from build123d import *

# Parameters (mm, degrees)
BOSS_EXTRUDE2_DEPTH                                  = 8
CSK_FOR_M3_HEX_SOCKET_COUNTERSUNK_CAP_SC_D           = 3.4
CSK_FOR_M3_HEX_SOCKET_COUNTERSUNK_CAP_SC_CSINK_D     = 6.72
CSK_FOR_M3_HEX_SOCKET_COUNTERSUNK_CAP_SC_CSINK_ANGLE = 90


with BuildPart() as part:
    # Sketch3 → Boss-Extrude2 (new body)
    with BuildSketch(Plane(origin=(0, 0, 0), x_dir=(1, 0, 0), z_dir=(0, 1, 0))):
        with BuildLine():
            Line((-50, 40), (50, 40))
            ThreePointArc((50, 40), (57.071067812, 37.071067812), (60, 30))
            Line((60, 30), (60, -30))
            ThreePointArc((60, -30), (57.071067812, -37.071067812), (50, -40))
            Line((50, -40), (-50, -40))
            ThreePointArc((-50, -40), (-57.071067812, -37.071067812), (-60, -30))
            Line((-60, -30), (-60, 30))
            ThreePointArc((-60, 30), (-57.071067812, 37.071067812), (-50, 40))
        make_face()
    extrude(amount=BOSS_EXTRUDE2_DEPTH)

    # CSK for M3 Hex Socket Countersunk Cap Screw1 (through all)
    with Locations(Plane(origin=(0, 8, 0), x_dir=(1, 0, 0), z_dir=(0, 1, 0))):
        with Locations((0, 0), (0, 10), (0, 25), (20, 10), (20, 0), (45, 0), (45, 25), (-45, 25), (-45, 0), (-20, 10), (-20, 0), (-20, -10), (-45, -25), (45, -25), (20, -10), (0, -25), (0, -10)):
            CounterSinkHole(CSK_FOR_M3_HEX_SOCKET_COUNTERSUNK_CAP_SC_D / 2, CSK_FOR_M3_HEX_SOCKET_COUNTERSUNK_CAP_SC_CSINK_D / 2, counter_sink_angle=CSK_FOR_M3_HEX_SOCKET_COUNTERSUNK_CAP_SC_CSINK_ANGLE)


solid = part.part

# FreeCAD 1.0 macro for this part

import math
import FreeCAD as App
import Part
import Sketcher

doc = App.newDocument("Part")
body = doc.addObject("PartDesign::Body", "Body")

# Sketch on XZ plane
sketch1 = doc.addObject("Sketcher::SketchObject", "Sketch")
body.addObject(sketch1)
sketch1.AttachmentSupport = (doc.XZ_Plane, [""])
sketch1.MapMode = "FlatFace"
sketch1.addGeometry([
    Part.LineSegment(App.Vector(50, -40, 0), App.Vector(-50, -40, 0)),  # 0
    Part.ArcOfCircle(Part.Circle(App.Vector(-50, -30, 0), App.Vector(0, 0, 1), 10), math.radians(180), math.radians(270)),  # 1
    Part.LineSegment(App.Vector(-60, -30, 0), App.Vector(-60, 30, 0)),  # 2
    Part.ArcOfCircle(Part.Circle(App.Vector(-50, 30, 0), App.Vector(0, 0, 1), 10), math.radians(90), math.radians(180)),  # 3
    Part.LineSegment(App.Vector(-50, 40, 0), App.Vector(50, 40, 0)),  # 4
    Part.ArcOfCircle(Part.Circle(App.Vector(50, 30, 0), App.Vector(0, 0, 1), 10), math.radians(0), math.radians(90)),  # 5
    Part.LineSegment(App.Vector(60, 30, 0), App.Vector(60, -30, 0)),  # 6
    Part.ArcOfCircle(Part.Circle(App.Vector(50, -30, 0), App.Vector(0, 0, 1), 10), math.radians(-90), math.radians(0)),  # 7
], False)
sketch1.addConstraint([
    Sketcher.Constraint("Tangent", 0, 2, 1, 2),
    Sketcher.Constraint("Tangent", 1, 1, 2, 1),
    Sketcher.Constraint("Tangent", 2, 2, 3, 2),
    Sketcher.Constraint("Tangent", 3, 1, 4, 1),
    Sketcher.Constraint("Tangent", 4, 2, 5, 2),
    Sketcher.Constraint("Tangent", 5, 1, 6, 1),
    Sketcher.Constraint("Tangent", 6, 2, 7, 2),
    Sketcher.Constraint("Tangent", 7, 1, 0, 1),
    Sketcher.Constraint("Horizontal", 0),
    Sketcher.Constraint("Vertical", 2),
    Sketcher.Constraint("Horizontal", 4),
    Sketcher.Constraint("Vertical", 6),
    Sketcher.Constraint("Equal", 1, 3),
    Sketcher.Constraint("Equal", 3, 5),
    Sketcher.Constraint("Equal", 5, 7),
    Sketcher.Constraint("Symmetric", 1, 3, 5, 3, -1, 1),
    Sketcher.Constraint("Radius", 1, 10.0),
    Sketcher.Constraint("DistanceX", 0, 2, 0, 1, 100.0),
    Sketcher.Constraint("DistanceY", 2, 1, 2, 2, 60.0),
])
pad1 = doc.addObject("PartDesign::Pad", "Pad")
body.addObject(pad1)
pad1.Profile = sketch1
pad1.Length = 8
pad1.Reversed = True

# Sketch on XZ plane
sketch2 = doc.addObject("Sketcher::SketchObject", "Sketch001")
body.addObject(sketch2)
sketch2.AttachmentSupport = (doc.XZ_Plane, [""])
sketch2.MapMode = "FlatFace"
sketch2.AttachmentOffset = App.Placement(App.Vector(0, 0, -8), App.Rotation())
sketch2.addGeometry([
    Part.Circle(App.Vector(0, 0, 0), App.Vector(0, 0, 1), 1.7),  # 0
    Part.Circle(App.Vector(0, -10, 0), App.Vector(0, 0, 1), 1.7),  # 1
    Part.Circle(App.Vector(0, -25, 0), App.Vector(0, 0, 1), 1.7),  # 2
    Part.Circle(App.Vector(20, -10, 0), App.Vector(0, 0, 1), 1.7),  # 3
    Part.Circle(App.Vector(20, 0, 0), App.Vector(0, 0, 1), 1.7),  # 4
    Part.Circle(App.Vector(45, 0, 0), App.Vector(0, 0, 1), 1.7),  # 5
    Part.Circle(App.Vector(45, -25, 0), App.Vector(0, 0, 1), 1.7),  # 6
    Part.Circle(App.Vector(-45, -25, 0), App.Vector(0, 0, 1), 1.7),  # 7
    Part.Circle(App.Vector(-45, 0, 0), App.Vector(0, 0, 1), 1.7),  # 8
    Part.Circle(App.Vector(-20, -10, 0), App.Vector(0, 0, 1), 1.7),  # 9
    Part.Circle(App.Vector(-20, 0, 0), App.Vector(0, 0, 1), 1.7),  # 10
    Part.Circle(App.Vector(-20, 10, 0), App.Vector(0, 0, 1), 1.7),  # 11
    Part.Circle(App.Vector(-45, 25, 0), App.Vector(0, 0, 1), 1.7),  # 12
    Part.Circle(App.Vector(45, 25, 0), App.Vector(0, 0, 1), 1.7),  # 13
    Part.Circle(App.Vector(20, 10, 0), App.Vector(0, 0, 1), 1.7),  # 14
    Part.Circle(App.Vector(0, 25, 0), App.Vector(0, 0, 1), 1.7),  # 15
    Part.Circle(App.Vector(0, 10, 0), App.Vector(0, 0, 1), 1.7),  # 16
], False)
sketch2.addConstraint([
    Sketcher.Constraint("Coincident", 0, 3, -1, 1),
    Sketcher.Constraint("Equal", 0, 1),
    Sketcher.Constraint("Equal", 1, 2),
    Sketcher.Constraint("Equal", 2, 3),
    Sketcher.Constraint("Equal", 3, 4),
    Sketcher.Constraint("Equal", 4, 5),
    Sketcher.Constraint("Equal", 5, 6),
    Sketcher.Constraint("Equal", 6, 7),
    Sketcher.Constraint("Equal", 7, 8),
    Sketcher.Constraint("Equal", 8, 9),
    Sketcher.Constraint("Equal", 9, 10),
    Sketcher.Constraint("Equal", 10, 11),
    Sketcher.Constraint("Equal", 11, 12),
    Sketcher.Constraint("Equal", 12, 13),
    Sketcher.Constraint("Equal", 13, 14),
    Sketcher.Constraint("Equal", 14, 15),
    Sketcher.Constraint("Equal", 15, 16),
    Sketcher.Constraint("Symmetric", 5, 3, 8, 3, -1, 1),
    Sketcher.Constraint("Symmetric", 4, 3, 10, 3, -1, 1),
    Sketcher.Constraint("Symmetric", 3, 3, 11, 3, -1, 1),
    Sketcher.Constraint("Symmetric", 6, 3, 12, 3, -1, 1),
    Sketcher.Constraint("Symmetric", 7, 3, 13, 3, -1, 1),
    Sketcher.Constraint("Symmetric", 9, 3, 14, 3, -1, 1),
    Sketcher.Constraint("Symmetric", 2, 3, 15, 3, -1, 1),
    Sketcher.Constraint("Symmetric", 1, 3, 16, 3, -1, 1),
    Sketcher.Constraint("Symmetric", 6, 3, 7, 3, -2),
    Sketcher.Constraint("Symmetric", 3, 3, 9, 3, -2),
    Sketcher.Constraint("PointOnObject", 1, 3, -2),
    Sketcher.Constraint("PointOnObject", 2, 3, -2),
    Sketcher.Constraint("PointOnObject", 4, 3, -1),
    Sketcher.Constraint("PointOnObject", 5, 3, -1),
    Sketcher.Constraint("Horizontal", 1, 3, 3, 3),
    Sketcher.Constraint("Horizontal", 2, 3, 6, 3),
    Sketcher.Constraint("Vertical", 3, 3, 4, 3),
    Sketcher.Constraint("Vertical", 5, 3, 6, 3),
    Sketcher.Constraint("Diameter", 0, 3.4),
    Sketcher.Constraint("DistanceY", 1, 3, -1, 1, 10.0),
    Sketcher.Constraint("DistanceY", 2, 3, -1, 1, 25.0),
    Sketcher.Constraint("DistanceX", -1, 1, 3, 3, 20.0),
    Sketcher.Constraint("DistanceX", -1, 1, 5, 3, 45.0),
])
doc.recompute()
hole = doc.addObject("PartDesign::Hole", "Hole")
body.addObject(hole)
hole.Profile = sketch2
hole.ThreadType = "None"
hole.Diameter = 3.4
hole.DepthType = "ThroughAll"
hole.HoleCutType = "Countersink"
hole.HoleCutDiameter = 6.72
hole.HoleCutCountersinkAngle = 90
hole.Reversed = True

doc.recompute()
